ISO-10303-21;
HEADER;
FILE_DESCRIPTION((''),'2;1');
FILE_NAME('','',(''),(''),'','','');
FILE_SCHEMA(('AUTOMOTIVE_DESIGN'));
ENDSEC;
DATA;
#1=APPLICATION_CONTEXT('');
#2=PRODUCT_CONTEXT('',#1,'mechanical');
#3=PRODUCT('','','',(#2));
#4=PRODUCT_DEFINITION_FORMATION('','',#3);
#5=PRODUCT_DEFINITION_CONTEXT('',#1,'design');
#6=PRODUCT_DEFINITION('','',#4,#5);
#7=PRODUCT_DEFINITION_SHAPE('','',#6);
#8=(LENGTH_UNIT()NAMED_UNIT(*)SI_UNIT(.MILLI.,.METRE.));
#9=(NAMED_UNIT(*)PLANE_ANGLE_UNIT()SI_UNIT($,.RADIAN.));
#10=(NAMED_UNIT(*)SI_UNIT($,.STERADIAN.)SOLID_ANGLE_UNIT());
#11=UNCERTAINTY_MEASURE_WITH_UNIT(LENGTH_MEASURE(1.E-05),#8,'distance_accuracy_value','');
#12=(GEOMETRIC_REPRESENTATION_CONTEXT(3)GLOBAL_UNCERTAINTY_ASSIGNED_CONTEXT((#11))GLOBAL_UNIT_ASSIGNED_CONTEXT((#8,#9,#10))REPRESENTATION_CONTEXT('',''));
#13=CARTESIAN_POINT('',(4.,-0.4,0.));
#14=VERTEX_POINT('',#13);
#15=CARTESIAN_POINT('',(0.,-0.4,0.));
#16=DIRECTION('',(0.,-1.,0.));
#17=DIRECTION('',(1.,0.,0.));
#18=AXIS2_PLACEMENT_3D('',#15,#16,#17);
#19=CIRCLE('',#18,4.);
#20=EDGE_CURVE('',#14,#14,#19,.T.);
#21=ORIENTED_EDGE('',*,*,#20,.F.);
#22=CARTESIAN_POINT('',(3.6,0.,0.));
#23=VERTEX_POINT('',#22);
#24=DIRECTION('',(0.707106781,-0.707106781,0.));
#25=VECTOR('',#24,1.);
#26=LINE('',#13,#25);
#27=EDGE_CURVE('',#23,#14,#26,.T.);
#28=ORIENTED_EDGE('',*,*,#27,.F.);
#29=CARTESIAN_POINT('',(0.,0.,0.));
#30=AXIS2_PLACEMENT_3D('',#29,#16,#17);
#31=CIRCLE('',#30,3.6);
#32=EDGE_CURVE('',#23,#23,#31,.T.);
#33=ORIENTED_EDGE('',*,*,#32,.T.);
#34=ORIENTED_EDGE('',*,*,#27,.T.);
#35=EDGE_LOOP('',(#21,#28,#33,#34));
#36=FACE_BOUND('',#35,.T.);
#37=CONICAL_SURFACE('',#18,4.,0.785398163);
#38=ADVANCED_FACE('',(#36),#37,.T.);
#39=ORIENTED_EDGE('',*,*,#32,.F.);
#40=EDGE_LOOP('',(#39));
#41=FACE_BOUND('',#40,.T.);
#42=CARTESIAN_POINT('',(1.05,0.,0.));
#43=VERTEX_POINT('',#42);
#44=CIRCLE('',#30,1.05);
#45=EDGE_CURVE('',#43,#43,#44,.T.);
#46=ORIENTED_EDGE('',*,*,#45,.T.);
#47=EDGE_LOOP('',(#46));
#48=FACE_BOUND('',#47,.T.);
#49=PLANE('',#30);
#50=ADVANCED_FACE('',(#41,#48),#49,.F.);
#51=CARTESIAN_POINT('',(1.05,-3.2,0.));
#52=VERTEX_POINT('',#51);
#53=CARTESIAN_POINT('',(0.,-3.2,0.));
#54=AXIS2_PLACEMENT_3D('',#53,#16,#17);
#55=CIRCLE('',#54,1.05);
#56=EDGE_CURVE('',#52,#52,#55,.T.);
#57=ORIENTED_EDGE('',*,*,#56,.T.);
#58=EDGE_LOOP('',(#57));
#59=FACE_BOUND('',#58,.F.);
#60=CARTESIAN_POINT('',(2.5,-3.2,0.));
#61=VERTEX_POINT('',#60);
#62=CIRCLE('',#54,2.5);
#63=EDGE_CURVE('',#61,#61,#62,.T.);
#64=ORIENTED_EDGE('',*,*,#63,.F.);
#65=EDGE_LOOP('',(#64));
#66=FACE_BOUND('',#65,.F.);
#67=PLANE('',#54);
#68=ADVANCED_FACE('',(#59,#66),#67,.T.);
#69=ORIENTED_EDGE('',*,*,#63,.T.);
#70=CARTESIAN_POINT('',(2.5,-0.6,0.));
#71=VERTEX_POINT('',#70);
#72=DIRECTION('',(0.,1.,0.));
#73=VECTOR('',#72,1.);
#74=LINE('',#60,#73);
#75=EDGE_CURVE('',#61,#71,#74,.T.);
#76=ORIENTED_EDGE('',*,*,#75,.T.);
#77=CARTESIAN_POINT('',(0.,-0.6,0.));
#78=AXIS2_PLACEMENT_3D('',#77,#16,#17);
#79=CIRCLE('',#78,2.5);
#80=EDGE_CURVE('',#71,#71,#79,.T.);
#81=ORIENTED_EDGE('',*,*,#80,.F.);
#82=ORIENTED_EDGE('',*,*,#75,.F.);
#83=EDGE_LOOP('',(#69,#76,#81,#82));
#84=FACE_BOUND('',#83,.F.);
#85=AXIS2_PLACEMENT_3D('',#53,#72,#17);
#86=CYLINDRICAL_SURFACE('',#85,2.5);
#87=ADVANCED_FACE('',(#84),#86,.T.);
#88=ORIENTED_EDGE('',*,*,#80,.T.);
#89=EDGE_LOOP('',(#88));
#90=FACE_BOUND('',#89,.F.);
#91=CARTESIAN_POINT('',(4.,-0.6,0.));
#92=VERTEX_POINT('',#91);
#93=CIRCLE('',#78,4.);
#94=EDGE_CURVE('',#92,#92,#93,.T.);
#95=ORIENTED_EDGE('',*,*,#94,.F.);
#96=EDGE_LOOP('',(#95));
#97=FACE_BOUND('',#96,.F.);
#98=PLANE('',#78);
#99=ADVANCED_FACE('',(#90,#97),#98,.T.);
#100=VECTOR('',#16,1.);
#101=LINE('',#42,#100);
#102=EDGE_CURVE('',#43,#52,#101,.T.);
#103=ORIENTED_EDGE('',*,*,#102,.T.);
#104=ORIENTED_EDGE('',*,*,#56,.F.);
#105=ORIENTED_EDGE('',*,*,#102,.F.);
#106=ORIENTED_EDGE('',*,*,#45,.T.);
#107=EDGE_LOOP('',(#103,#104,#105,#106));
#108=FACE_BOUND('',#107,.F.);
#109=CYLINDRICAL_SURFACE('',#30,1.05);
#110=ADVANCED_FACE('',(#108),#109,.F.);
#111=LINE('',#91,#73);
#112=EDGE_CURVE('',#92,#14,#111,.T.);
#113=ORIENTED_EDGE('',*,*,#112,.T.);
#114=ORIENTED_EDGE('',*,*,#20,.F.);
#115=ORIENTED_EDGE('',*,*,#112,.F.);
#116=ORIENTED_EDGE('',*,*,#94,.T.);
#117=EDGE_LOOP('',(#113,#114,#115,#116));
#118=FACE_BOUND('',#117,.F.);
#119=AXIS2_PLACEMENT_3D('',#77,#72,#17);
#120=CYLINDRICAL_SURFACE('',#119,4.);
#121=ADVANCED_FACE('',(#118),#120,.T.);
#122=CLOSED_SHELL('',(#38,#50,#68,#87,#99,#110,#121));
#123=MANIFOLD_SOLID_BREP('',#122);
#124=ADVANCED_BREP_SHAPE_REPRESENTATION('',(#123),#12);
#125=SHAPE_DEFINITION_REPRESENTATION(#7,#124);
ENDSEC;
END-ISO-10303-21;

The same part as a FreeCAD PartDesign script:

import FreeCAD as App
import Part
import Sketcher


def edges_at(feature, points):
    """Names of the edges that pass closest to the given points."""
    edges = feature.Shape.Edges
    near = lambda p: min(range(len(edges)), key=lambda i: edges[i].distToShape(Part.Vertex(*p))[0])
    return sorted({f"Edge{near(p) + 1}" for p in points})

doc = App.newDocument("Part")
body = doc.addObject("PartDesign::Body", "Body")

# Sketch on XY plane
sketch1 = body.newObject("Sketcher::SketchObject", "Sketch")
sketch1.AttachmentSupport = (doc.getObject("XY_Plane"), [""])
sketch1.MapMode = "FlatFace"
sketch1.addGeometry(Part.LineSegment(App.Vector(4, 0, 0), App.Vector(1.1, 0, 0)), False)
sketch1.addGeometry(Part.LineSegment(App.Vector(1.1, 0, 0), App.Vector(1.1, -3.2, 0)), False)
sketch1.addGeometry(Part.LineSegment(App.Vector(1.1, -3.2, 0), App.Vector(2.5, -3.2, 0)), False)
sketch1.addGeometry(Part.LineSegment(App.Vector(2.5, -3.2, 0), App.Vector(2.5, -0.6, 0)), False)
sketch1.addGeometry(Part.LineSegment(App.Vector(2.5, -0.6, 0), App.Vector(4, -0.6, 0)), False)
sketch1.addGeometry(Part.LineSegment(App.Vector(4, -0.6, 0), App.Vector(4, 0, 0)), False)
sketch1.addConstraint(Sketcher.Constraint("Coincident", 0, 2, 1, 1))
sketch1.addConstraint(Sketcher.Constraint("Coincident", 1, 2, 2, 1))
sketch1.addConstraint(Sketcher.Constraint("Coincident", 2, 2, 3, 1))
sketch1.addConstraint(Sketcher.Constraint("Coincident", 3, 2, 4, 1))
sketch1.addConstraint(Sketcher.Constraint("Coincident", 4, 2, 5, 1))
sketch1.addConstraint(Sketcher.Constraint("Coincident", 5, 2, 0, 1))
sketch1.addConstraint(Sketcher.Constraint("Horizontal", 0))
sketch1.addConstraint(Sketcher.Constraint("Vertical", 1))
sketch1.addConstraint(Sketcher.Constraint("Horizontal", 2))
sketch1.addConstraint(Sketcher.Constraint("Vertical", 3))
sketch1.addConstraint(Sketcher.Constraint("Horizontal", 4))
sketch1.addConstraint(Sketcher.Constraint("Vertical", 5))
sketch1.addConstraint(Sketcher.Constraint("PointOnObject", 0, 2, -1))
sketch1.addConstraint(Sketcher.Constraint("DistanceY", 1, 2, 1, 1, 3.2))
sketch1.addConstraint(Sketcher.Constraint("DistanceY", 3, 1, 3, 2, 2.6))
sketch1.addConstraint(Sketcher.Constraint("DistanceX", -1, 1, 4, 2, 4.0))
sketch1.addConstraint(Sketcher.Constraint("DistanceX", -1, 1, 2, 2, 2.5))
sketch1.addConstraint(Sketcher.Constraint("DistanceX", -1, 1, 0, 2, 1.05))
revolution = body.newObject("PartDesign::Revolution", "Revolution")
revolution.Profile = sketch1
revolution.ReferenceAxis = (sketch1, ["V_Axis"])
revolution.Angle = 360
doc.recompute()

chamfer = body.newObject("PartDesign::Chamfer", "Chamfer")
chamfer.Base = (revolution, edges_at(revolution, [(-4, 0, 0)]))
chamfer.Size = 0.4

doc.recompute()
